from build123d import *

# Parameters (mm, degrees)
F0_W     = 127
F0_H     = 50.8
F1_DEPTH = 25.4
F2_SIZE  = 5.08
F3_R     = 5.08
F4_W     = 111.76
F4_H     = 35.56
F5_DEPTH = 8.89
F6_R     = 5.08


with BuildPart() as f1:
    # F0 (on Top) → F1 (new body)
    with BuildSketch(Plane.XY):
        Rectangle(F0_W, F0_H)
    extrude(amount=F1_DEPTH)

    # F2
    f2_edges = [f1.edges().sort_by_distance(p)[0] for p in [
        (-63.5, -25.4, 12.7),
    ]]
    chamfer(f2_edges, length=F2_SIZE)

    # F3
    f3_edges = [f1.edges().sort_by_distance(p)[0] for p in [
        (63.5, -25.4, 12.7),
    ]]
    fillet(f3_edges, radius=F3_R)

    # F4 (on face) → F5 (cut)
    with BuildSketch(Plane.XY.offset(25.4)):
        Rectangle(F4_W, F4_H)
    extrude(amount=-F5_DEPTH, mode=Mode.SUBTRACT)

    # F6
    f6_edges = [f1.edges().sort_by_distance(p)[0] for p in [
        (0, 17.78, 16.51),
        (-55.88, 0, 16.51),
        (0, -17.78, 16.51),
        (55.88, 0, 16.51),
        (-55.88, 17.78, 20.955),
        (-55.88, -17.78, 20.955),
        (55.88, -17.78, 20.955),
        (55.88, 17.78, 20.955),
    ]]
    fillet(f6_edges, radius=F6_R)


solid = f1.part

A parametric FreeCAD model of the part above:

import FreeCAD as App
import Part
import Sketcher

V = App.Vector
Q = App.Units.Quantity


def edges_at(feature, points):
    """Names of the edges that pass closest to the given points."""
    edges = feature.Shape.Edges
    near = lambda p: min(range(len(edges)), key=lambda i: edges[i].distToShape(Part.Vertex(*p))[0])
    return sorted({f"Edge{near(p) + 1}" for p in points})


def add_polygon(sketch, points):
    """Adds a closed chain of lines whose ends are joined by coincident constraints."""
    first, n = sketch.GeometryCount, len(points)
    for a, b in zip(points, points[1:] + points[:1]):
        sketch.addGeometry(Part.LineSegment(App.Vector(*a, 0), App.Vector(*b, 0)), False)
    for i in range(n):
        sketch.addConstraint(Sketcher.Constraint("Coincident", first + i, 2, first + (i + 1) % n, 1))

doc = App.newDocument("Part")
body = doc.addObject("PartDesign::Body", "Body")

sketch1 = body.newObject("Sketcher::SketchObject", "Sketch")
sketch1.AttachmentSupport = (doc.getObject("XY_Plane"), [""])
sketch1.MapMode = "FlatFace"
add_polygon(sketch1, [(-64, 25), (-64, -25), (64, -25), (64, 25)])
sketch1.addConstraint([
    Sketcher.Constraint("Vertical", 0),
    Sketcher.Constraint("Horizontal", 1),
    Sketcher.Constraint("Vertical", 2),
    Sketcher.Constraint("Horizontal", 3),
    Sketcher.Constraint("Symmetric", 0, 2, 2, 2, -1, 1),
    Sketcher.Constraint("DistanceX", 1, 1, 1, 2, Q("5 in")),
    Sketcher.Constraint("DistanceY", 0, 2, 0, 1, Q("2 in")),
])
pad1 = body.newObject("PartDesign::Pad", "Pad")
pad1.Profile = sketch1
pad1.Length = Q("1 in")
doc.recompute()

chamfer = body.newObject("PartDesign::Chamfer", "Chamfer")
chamfer.Base = (pad1, edges_at(pad1, [(-63.5, -25.4, 12.7)]))
chamfer.Size = Q("0.2 in")
doc.recompute()

fillet = body.newObject("PartDesign::Fillet", "Fillet")
fillet.Base = (chamfer, edges_at(chamfer, [(63.5, -25.4, 12.7)]))
fillet.Radius = Q("0.2 in")

sketch2 = body.newObject("Sketcher::SketchObject", "Sketch001")
sketch2.AttachmentSupport = (doc.getObject("XY_Plane"), [""])
sketch2.MapMode = "FlatFace"
sketch2.AttachmentOffset = App.Placement(V(0, 0, 1 * 25.4), App.Rotation())
add_polygon(sketch2, [(-56, 18), (-56, -18), (56, -18), (56, 18)])
sketch2.addConstraint([
    Sketcher.Constraint("Vertical", 0),
    Sketcher.Constraint("Horizontal", 1),
    Sketcher.Constraint("Vertical", 2),
    Sketcher.Constraint("Horizontal", 3),
    Sketcher.Constraint("Symmetric", 0, 2, 2, 2, -1, 1),
    Sketcher.Constraint("DistanceX", 1, 1, 1, 2, Q("4.4 in")),
    Sketcher.Constraint("DistanceY", 0, 2, 0, 1, Q("1.4 in")),
])
pocket1 = body.newObject("PartDesign::Pocket", "Pocket")
pocket1.Profile = sketch2
pocket1.Length = Q("0.35 in")
doc.recompute()

fillet2 = body.newObject("PartDesign::Fillet", "Fillet001")
fillet2.Base = (pocket1, edges_at(pocket1, [
    (0, 17.78, 16.51),
    (-55.88, 0, 16.51),
    (0, -17.78, 16.51),
    (55.88, 0, 16.51),
    (-55.88, 17.78, 20.955),
    (-55.88, -17.78, 20.955),
    (55.88, -17.78, 20.955),
    (55.88, 17.78, 20.955),
]))
fillet2.Radius = Q("0.2 in")

doc.recompute()
